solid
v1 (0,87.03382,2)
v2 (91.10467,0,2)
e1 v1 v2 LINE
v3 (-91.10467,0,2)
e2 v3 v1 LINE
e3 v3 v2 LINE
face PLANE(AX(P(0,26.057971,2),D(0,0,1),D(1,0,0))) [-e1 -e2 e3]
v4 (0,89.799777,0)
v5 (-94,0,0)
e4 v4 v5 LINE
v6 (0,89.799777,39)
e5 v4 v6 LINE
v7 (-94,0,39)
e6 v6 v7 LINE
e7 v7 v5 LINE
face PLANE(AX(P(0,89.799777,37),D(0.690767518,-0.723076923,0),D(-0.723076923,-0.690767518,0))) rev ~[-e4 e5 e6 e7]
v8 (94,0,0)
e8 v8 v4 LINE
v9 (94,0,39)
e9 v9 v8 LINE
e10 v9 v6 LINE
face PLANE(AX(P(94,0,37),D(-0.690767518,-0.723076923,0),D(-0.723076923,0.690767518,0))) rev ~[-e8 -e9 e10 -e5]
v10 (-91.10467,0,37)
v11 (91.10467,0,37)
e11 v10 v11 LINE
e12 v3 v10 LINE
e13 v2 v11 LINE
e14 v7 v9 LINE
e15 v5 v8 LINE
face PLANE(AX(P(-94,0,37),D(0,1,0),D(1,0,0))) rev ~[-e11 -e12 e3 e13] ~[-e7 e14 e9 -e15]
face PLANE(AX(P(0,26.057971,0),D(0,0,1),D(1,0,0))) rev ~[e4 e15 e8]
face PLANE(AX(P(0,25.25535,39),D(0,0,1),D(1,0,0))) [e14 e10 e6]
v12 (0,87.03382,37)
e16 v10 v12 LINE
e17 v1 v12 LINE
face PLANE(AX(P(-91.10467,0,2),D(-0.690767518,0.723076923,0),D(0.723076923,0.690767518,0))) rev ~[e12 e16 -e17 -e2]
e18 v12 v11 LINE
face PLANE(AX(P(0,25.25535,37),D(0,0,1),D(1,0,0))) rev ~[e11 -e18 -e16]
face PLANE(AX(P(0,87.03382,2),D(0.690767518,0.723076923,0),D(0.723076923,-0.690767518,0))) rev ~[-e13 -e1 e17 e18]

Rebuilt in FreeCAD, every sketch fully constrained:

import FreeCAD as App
import Part
import Sketcher
from FreeCAD import Vector


def add_polygon(sketch, points):
    """Adds a closed chain of lines whose ends are joined by coincident constraints."""
    first, n = sketch.GeometryCount, len(points)
    for a, b in zip(points, points[1:] + points[:1]):
        sketch.addGeometry(Part.LineSegment(App.Vector(*a, 0), App.Vector(*b, 0)), False)
    for i in range(n):
        sketch.addConstraint(Sketcher.Constraint("Coincident", first + i, 2, first + (i + 1) % n, 1))

doc = App.newDocument("Part")
body = doc.addObject("PartDesign::Body", "Body")

sketch1 = body.newObject("Sketcher::SketchObject", "Sketch")
sketch1.AttachmentSupport = (doc.getObject("XY_Plane"), [""])
sketch1.MapMode = "FlatFace"
add_polygon(sketch1, [(-94, 0), (94, 0), (0, 90)])
sketch1.addConstraint(Sketcher.Constraint("Horizontal", 0))
sketch1.addConstraint(Sketcher.Constraint("Symmetric", 0, 2, 2, 2, -1, 1))
sketch1.addConstraint(Sketcher.Constraint("PointOnObject", 1, 2, -2))
sketch1.addConstraint(Sketcher.Constraint("DistanceX", 0, 1, 0, 2, 188.0))
sketch1.addConstraint(Sketcher.Constraint("Distance", 1, 130.0))
pad1 = body.newObject("PartDesign::Pad", "Pad")
pad1.Profile = sketch1
pad1.Length = 2

sketch2 = body.newObject("Sketcher::SketchObject", "Sketch001")
sketch2.AttachmentSupport = (doc.getObject("XY_Plane"), [""])
sketch2.MapMode = "FlatFace"
sketch2.AttachmentOffset = App.Placement(Vector(0, 0, 2), App.Rotation())
add_polygon(sketch2, [(-91.1, 0), (0, 87), (91.1, 0), (94, 0), (0, 89.8), (-94, 0)])
sketch2.addConstraint(Sketcher.Constraint("Horizontal", 2))
sketch2.addConstraint(Sketcher.Constraint("Horizontal", 5))
sketch2.addConstraint(Sketcher.Constraint("Symmetric", 2, 2, 4, 2, -1, 1))
sketch2.addConstraint(Sketcher.Constraint("Symmetric", 1, 2, 5, 2, -2))
sketch2.addConstraint(Sketcher.Constraint("PointOnObject", 0, 2, -2))
sketch2.addConstraint(Sketcher.Constraint("PointOnObject", 3, 2, -2))
sketch2.addConstraint(Sketcher.Constraint("Parallel", 1, 3))
sketch2.addConstraint(Sketcher.Constraint("Distance", 3, 130.0))
sketch2.addConstraint(Sketcher.Constraint("DistanceX", -1, 1, 2, 2, 94.0))
sketch2.addConstraint(Sketcher.Constraint("DistanceX", 2, 1, 2, 2, 2.89533))
pad2 = body.newObject("PartDesign::Pad", "Pad001")
pad2.Profile = sketch2
pad2.Length = 35

sketch3 = body.newObject("Sketcher::SketchObject", "Sketch002")
sketch3.AttachmentSupport = (doc.getObject("XY_Plane"), [""])
sketch3.MapMode = "FlatFace"
sketch3.AttachmentOffset = App.Placement(Vector(0, 0, 37), App.Rotation())
add_polygon(sketch3, [(94, 0), (0, 90), (-94, 0)])
sketch3.addConstraint(Sketcher.Constraint("Horizontal", 2))
sketch3.addConstraint(Sketcher.Constraint("Symmetric", 1, 2, 2, 2, -1, 1))
sketch3.addConstraint(Sketcher.Constraint("PointOnObject", 0, 2, -2))
sketch3.addConstraint(Sketcher.Constraint("DistanceX", 2, 1, 2, 2, 188.0))
sketch3.addConstraint(Sketcher.Constraint("Distance", 0, 130.0))
pad3 = body.newObject("PartDesign::Pad", "Pad002")
pad3.Profile = sketch3
pad3.Length = 2

doc.recompute()
